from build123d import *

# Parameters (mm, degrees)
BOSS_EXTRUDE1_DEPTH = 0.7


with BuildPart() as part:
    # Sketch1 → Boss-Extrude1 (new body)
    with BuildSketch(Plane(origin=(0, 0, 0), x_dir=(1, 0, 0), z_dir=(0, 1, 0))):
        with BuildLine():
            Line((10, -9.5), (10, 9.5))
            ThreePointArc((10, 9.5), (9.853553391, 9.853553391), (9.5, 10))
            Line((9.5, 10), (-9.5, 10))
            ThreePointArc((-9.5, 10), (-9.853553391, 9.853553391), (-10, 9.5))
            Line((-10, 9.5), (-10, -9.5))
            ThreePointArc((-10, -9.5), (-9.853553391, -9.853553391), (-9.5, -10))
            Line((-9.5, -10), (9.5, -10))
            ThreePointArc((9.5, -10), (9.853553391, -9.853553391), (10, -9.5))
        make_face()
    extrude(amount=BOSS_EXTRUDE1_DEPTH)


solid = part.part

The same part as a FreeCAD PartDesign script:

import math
import FreeCAD as App
import Part
import Sketcher

doc = App.newDocument("Part")
body = doc.addObject("PartDesign::Body", "Body")

sketch1 = body.newObject("Sketcher::SketchObject", "Sketch")
sketch1.AttachmentSupport = (doc.getObject("XZ_Plane"), [""])
sketch1.MapMode = "FlatFace"
sketch1.addGeometry([
    Part.LineSegment(App.Vector(10, 9.5, 0), App.Vector(10, -9.5, 0)),
    Part.ArcOfCircle(Part.Circle(App.Vector(9.5, -9.5, 0), App.Vector(0, 0, 1), 0.5), math.radians(-90), math.radians(0)),
    Part.LineSegment(App.Vector(9.5, -10, 0), App.Vector(-9.5, -10, 0)),
    Part.ArcOfCircle(Part.Circle(App.Vector(-9.5, -9.5, 0), App.Vector(0, 0, 1), 0.5), math.radians(180), math.radians(270)),
    Part.LineSegment(App.Vector(-10, -9.5, 0), App.Vector(-10, 9.5, 0)),
    Part.ArcOfCircle(Part.Circle(App.Vector(-9.5, 9.5, 0), App.Vector(0, 0, 1), 0.5), math.radians(90), math.radians(180)),
    Part.LineSegment(App.Vector(-9.5, 10, 0), App.Vector(9.5, 10, 0)),
    Part.ArcOfCircle(Part.Circle(App.Vector(9.5, 9.5, 0), App.Vector(0, 0, 1), 0.5), math.radians(0), math.radians(90)),
], False)
sketch1.addConstraint([
    Sketcher.Constraint("Tangent", 0, 2, 1, 2),
    Sketcher.Constraint("Tangent", 1, 1, 2, 1),
    Sketcher.Constraint("Tangent", 2, 2, 3, 2),
    Sketcher.Constraint("Tangent", 3, 1, 4, 1),
    Sketcher.Constraint("Tangent", 4, 2, 5, 2),
    Sketcher.Constraint("Tangent", 5, 1, 6, 1),
    Sketcher.Constraint("Tangent", 6, 2, 7, 2),
    Sketcher.Constraint("Tangent", 7, 1, 0, 1),
    Sketcher.Constraint("Vertical", 0),
    Sketcher.Constraint("Horizontal", 2),
    Sketcher.Constraint("Vertical", 4),
    Sketcher.Constraint("Horizontal", 6),
    Sketcher.Constraint("Equal", 1, 3),
    Sketcher.Constraint("Equal", 3, 5),
    Sketcher.Constraint("Equal", 5, 7),
    Sketcher.Constraint("Symmetric", 1, 3, 5, 3, -1, 1),
    Sketcher.Constraint("Equal", 6, 0),
    Sketcher.Constraint("Radius", 1, 0.5),
    Sketcher.Constraint("DistanceX", 2, 2, 2, 1, 19.0),
])
pad1 = body.newObject("PartDesign::Pad", "Pad")
pad1.Profile = sketch1
pad1.Length = 0.7
pad1.Reversed = True

doc.recompute()
